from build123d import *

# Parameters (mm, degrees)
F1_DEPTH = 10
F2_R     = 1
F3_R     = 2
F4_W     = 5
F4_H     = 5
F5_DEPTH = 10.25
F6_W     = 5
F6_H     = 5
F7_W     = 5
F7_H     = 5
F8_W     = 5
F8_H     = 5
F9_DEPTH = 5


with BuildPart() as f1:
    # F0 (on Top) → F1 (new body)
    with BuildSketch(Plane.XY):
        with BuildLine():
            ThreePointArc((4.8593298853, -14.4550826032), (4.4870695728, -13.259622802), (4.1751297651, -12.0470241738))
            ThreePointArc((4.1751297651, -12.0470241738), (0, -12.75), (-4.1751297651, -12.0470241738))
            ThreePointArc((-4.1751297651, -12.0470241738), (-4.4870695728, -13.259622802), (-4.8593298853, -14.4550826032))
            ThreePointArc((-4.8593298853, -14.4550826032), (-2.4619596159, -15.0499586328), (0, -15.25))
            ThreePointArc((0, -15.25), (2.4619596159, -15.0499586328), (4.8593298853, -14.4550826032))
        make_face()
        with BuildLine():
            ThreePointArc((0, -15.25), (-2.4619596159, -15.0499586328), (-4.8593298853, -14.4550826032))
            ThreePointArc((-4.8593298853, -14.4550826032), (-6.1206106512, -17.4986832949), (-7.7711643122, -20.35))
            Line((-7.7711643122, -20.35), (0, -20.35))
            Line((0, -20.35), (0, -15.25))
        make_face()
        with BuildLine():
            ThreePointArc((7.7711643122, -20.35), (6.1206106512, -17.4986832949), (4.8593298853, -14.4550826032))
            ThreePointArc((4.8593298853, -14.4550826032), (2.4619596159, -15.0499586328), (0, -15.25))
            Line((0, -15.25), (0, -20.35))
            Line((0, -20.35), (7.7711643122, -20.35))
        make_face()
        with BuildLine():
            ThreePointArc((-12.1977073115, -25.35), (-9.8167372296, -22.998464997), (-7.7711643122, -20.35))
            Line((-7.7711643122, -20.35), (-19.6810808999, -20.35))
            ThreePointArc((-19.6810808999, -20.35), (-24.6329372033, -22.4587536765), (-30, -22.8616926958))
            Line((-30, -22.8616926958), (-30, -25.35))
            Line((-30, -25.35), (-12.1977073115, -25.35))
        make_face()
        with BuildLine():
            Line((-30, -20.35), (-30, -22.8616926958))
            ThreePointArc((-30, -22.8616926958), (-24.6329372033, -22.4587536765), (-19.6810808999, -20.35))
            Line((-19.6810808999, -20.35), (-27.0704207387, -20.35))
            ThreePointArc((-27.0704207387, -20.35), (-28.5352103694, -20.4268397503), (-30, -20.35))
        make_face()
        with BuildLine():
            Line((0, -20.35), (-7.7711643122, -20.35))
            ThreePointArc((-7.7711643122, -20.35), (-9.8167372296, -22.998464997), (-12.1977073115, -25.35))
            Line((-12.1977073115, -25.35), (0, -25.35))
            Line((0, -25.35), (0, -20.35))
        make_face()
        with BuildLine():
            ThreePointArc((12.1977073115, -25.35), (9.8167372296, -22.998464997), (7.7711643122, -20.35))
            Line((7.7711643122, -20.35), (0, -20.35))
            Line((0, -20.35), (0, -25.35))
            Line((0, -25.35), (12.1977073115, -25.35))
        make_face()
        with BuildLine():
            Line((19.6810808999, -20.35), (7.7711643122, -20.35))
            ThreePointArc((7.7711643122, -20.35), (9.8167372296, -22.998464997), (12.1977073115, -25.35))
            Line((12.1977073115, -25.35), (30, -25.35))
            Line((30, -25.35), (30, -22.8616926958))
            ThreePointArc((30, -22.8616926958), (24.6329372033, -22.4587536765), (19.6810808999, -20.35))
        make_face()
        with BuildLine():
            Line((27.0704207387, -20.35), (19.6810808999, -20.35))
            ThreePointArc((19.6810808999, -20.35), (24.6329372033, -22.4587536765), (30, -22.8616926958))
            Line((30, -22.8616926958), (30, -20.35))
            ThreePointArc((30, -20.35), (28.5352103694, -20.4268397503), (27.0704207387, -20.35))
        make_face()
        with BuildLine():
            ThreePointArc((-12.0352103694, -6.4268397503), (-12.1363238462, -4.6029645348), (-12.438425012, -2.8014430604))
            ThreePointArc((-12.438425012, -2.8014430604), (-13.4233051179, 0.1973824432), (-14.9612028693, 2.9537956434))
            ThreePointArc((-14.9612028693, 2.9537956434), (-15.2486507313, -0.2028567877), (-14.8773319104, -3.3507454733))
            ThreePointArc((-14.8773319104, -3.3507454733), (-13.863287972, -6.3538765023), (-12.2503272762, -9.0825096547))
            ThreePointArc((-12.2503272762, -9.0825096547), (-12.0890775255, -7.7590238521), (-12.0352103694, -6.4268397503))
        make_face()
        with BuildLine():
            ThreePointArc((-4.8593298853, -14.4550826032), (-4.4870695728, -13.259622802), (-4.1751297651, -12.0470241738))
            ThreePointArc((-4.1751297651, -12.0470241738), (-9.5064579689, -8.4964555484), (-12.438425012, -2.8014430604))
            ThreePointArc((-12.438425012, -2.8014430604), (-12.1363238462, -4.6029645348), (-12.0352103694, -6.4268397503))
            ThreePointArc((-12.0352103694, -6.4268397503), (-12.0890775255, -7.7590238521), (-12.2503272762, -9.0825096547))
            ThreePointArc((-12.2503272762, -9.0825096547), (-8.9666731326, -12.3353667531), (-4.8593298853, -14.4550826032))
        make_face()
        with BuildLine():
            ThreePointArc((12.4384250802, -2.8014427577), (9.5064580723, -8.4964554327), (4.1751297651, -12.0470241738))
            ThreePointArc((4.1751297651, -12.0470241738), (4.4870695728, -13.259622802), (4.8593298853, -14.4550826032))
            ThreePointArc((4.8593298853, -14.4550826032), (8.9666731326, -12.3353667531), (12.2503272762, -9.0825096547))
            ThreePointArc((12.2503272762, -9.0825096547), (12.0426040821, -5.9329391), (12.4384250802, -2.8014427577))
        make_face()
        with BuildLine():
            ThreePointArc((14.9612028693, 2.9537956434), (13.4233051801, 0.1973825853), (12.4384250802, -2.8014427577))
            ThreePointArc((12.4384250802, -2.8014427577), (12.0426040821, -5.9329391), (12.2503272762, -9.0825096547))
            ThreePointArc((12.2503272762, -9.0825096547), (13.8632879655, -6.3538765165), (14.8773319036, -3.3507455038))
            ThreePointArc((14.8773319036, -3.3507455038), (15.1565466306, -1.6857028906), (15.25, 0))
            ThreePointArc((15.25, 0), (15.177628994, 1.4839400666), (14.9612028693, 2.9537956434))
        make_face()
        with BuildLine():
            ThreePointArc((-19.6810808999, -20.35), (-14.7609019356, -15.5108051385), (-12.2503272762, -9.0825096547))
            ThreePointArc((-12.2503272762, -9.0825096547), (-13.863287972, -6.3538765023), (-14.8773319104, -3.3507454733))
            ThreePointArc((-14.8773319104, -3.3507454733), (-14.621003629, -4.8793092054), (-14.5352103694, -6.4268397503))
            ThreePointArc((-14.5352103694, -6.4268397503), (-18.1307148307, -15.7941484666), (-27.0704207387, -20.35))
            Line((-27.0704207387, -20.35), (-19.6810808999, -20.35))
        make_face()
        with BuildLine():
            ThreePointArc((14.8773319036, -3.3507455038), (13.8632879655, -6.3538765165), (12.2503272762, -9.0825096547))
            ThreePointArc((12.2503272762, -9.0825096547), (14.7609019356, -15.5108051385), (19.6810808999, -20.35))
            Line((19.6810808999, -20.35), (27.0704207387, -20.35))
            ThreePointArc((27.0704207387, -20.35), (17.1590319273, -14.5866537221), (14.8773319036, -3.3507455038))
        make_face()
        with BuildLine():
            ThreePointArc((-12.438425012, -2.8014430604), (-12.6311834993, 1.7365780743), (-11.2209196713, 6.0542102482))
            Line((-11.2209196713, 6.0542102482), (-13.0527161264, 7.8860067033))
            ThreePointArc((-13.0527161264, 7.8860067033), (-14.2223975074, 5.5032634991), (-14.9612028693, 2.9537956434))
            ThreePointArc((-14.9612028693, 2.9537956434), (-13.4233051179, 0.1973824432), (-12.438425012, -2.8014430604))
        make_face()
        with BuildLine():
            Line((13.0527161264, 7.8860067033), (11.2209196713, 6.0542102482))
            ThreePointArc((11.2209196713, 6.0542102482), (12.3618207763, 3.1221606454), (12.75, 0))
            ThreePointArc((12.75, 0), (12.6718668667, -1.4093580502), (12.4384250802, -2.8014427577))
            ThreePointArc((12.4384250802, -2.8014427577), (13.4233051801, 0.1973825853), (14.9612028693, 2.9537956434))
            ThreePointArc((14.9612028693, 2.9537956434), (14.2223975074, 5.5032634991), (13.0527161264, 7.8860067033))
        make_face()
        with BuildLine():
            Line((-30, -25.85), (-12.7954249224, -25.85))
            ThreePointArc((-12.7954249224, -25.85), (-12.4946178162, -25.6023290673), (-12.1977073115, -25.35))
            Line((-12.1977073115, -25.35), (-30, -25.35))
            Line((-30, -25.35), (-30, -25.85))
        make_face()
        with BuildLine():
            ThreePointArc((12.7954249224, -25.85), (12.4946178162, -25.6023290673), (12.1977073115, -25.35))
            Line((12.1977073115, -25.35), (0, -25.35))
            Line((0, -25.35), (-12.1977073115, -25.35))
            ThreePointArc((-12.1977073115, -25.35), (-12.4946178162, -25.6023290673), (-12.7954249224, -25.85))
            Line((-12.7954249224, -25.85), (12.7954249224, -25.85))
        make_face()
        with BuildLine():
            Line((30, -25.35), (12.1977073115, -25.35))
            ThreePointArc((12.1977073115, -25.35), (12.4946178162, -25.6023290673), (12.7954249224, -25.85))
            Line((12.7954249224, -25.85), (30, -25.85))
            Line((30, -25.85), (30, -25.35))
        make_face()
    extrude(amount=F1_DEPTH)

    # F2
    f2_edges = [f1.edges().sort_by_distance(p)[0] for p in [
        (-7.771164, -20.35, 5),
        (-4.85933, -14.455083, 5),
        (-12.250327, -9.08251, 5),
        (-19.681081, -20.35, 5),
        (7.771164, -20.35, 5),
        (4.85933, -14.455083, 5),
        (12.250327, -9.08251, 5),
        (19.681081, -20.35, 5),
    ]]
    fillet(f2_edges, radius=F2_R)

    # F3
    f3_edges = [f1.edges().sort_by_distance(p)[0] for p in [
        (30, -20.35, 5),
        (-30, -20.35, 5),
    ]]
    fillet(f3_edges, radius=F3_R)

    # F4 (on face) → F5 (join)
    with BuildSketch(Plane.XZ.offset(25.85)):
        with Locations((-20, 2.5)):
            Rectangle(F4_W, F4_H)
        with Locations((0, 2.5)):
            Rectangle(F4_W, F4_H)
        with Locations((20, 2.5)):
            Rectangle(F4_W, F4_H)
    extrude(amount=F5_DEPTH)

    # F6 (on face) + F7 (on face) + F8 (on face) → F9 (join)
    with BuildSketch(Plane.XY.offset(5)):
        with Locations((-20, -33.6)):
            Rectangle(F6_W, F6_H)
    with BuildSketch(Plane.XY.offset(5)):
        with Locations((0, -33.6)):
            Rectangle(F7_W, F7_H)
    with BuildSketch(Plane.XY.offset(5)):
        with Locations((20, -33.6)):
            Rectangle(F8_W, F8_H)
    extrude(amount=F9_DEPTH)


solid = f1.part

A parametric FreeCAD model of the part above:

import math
import FreeCAD as App
import Part
import Sketcher
from FreeCAD import Vector
Q = App.Units.Quantity


def edges_at(feature, points):
    """Names of the edges that pass closest to the given points."""
    edges = feature.Shape.Edges
    near = lambda p: min(range(len(edges)), key=lambda i: edges[i].distToShape(Part.Vertex(*p))[0])
    return sorted({f"Edge{near(p) + 1}" for p in points})

doc = App.newDocument("Part")
params = doc.addObject("Spreadsheet::Sheet", "Params")
for row, (alias, value) in enumerate([
    ("sketch1_radius", "14 mm"),
    ("sketch1_radius2", "25 mm"),
    ("sketch1_radius3", "16.5 mm"),
    ("sketch1_width", "60 mm"),
    ("sketch1_radius4", "12.75 mm"),
    ("pad1_length", "10 mm"),
    ("fillet_radius", "1 mm"),
    ("fillet2_radius", "2 mm"),
    ("sketch2_width", "5 mm"),
    ("pad2_length", "10.25 mm"),
    ("sketch3_width", "5 mm"),
    ("pad3_length", "5 mm"),
], start=1):
    params.set(f"A{row}", alias)
    params.set(f"B{row}", "=" + value)
    params.setAlias(f"B{row}", alias)

body = doc.addObject("PartDesign::Body", "Body")

# Sketch on XY plane
sketch1 = body.newObject("Sketcher::SketchObject", "Sketch")
sketch1.AttachmentSupport = (doc.getObject("XY_Plane"), [""])
sketch1.MapMode = "FlatFace"
sketch1.addGeometry([
    Part.ArcOfCircle(Part.Circle(Vector(0, 0, 0), Vector(0, 0, 1), 12.75), math.radians(-70.88525), math.radians(-12.692647)),  # 0
    Part.ArcOfCircle(Part.Circle(Vector(0, 0, 0), Vector(0, 0, 1), 12.75), math.radians(-109.11475), math.radians(-70.88525)),  # 1
    Part.ArcOfCircle(Part.Circle(Vector(0, 0, 0), Vector(0, 0, 1), 12.75), math.radians(-167.307352), math.radians(-109.11475)),  # 2
    Part.ArcOfCircle(Part.Circle(Vector(0, 0, 0), Vector(0, 0, 1), 12.75), math.radians(151.651066), math.radians(192.692648)),  # 3
    Part.LineSegment(Vector(-11.22092, 6.05421, 0), Vector(-13.052716, 7.886007, 0)),  # 4
    Part.ArcOfCircle(Part.Circle(Vector(0, 0, 0), Vector(0, 0, 1), 15.25), math.radians(148.861057), math.radians(168.831704)),  # 5
    Part.ArcOfCircle(Part.Circle(Vector(0, 0, 0), Vector(0, 0, 1), 15.25), math.radians(168.831704), math.radians(192.692647)),  # 6
    Part.ArcOfCircle(Part.Circle(Vector(-28.53521, -6.42684, 0), Vector(0, 0, 1), 14), math.radians(0), math.radians(12.692648)),  # 7
    Part.ArcOfCircle(Part.Circle(Vector(-28.53521, -6.42684, 0), Vector(0, 0, 1), 14), math.radians(-83.994275), math.radians(0)),  # 8
    Part.ArcOfCircle(Part.Circle(Vector(-28.53521, -6.42684, 0), Vector(0, 0, 1), 14), math.radians(-96.005725), math.radians(-83.994275)),  # 9
    Part.LineSegment(Vector(-30, -20.35, 0), Vector(-30, -25.85, 0)),  # 10
    Part.LineSegment(Vector(-30, -25.85, 0), Vector(30, -25.85, 0)),  # 11
    Part.LineSegment(Vector(30, -25.85, 0), Vector(30, -20.35, 0)),  # 12
    Part.ArcOfCircle(Part.Circle(Vector(28.53521, -6.42684, 0), Vector(0, 0, 1), 14), math.radians(-96.005725), math.radians(-83.994275)),  # 13
    Part.ArcOfCircle(Part.Circle(Vector(28.53521, -6.42684, 0), Vector(0, 0, 1), 14), math.radians(167.307352), math.radians(263.994275)),  # 14
    Part.ArcOfCircle(Part.Circle(Vector(0, 0, 0), Vector(0, 0, 1), 15.25), math.radians(-12.692647), math.radians(0)),  # 15
    Part.ArcOfCircle(Part.Circle(Vector(0, 0, 0), Vector(0, 0, 1), 15.25), math.radians(0), math.radians(11.168296)),  # 16
    Part.ArcOfCircle(Part.Circle(Vector(0, 0, 0), Vector(0, 0, 1), 15.25), math.radians(11.168296), math.radians(31.138943)),  # 17
    Part.LineSegment(Vector(13.052716, 7.886007, 0), Vector(11.22092, 6.05421, 0)),  # 18
    Part.ArcOfCircle(Part.Circle(Vector(0, 0, 0), Vector(0, 0, 1), 12.75), math.radians(0), math.radians(28.348934)),  # 19
    Part.ArcOfCircle(Part.Circle(Vector(0, 0, 0), Vector(0, 0, 1), 12.75), math.radians(-12.692647), math.radians(0)),  # 20
    Part.ArcOfCircle(Part.Circle(Vector(28.53521, -6.42684, 0), Vector(0, 0, 1), 16.5), math.radians(-170.737976), math.radians(-122.453429)),  # 21
    Part.LineSegment(Vector(19.681081, -20.35, 0), Vector(7.771164, -20.35, 0)),  # 22
    Part.ArcOfCircle(Part.Circle(Vector(28.53521, -6.42684, 0), Vector(0, 0, 1), 25), math.radians(-161.268741), math.radians(-146.156496)),  # 23
    Part.ArcOfCircle(Part.Circle(Vector(0, 0, 0), Vector(0, 0, 1), 15.25), math.radians(-71.419025), math.radians(-36.553591)),  # 24
    Part.ArcOfCircle(Part.Circle(Vector(-28.53521, -6.42684, 0), Vector(0, 0, 1), 25), math.radians(-33.843504), math.radians(-18.731259)),  # 25
    Part.LineSegment(Vector(-7.771164, -20.35, 0), Vector(-19.681081, -20.35, 0)),  # 26
    Part.ArcOfCircle(Part.Circle(Vector(-28.53521, -6.42684, 0), Vector(0, 0, 1), 16.5), math.radians(-57.546571), math.radians(-9.262024)),  # 27
    Part.ArcOfCircle(Part.Circle(Vector(0, 0, 0), Vector(0, 0, 1), 15.25), math.radians(-143.446409), math.radians(-108.580975)),  # 28
], False)
sketch1.addConstraint([
    Sketcher.Constraint("Tangent", 0, 1, 1, 2),
    Sketcher.Constraint("Tangent", 1, 1, 2, 2),
    Sketcher.Constraint("Tangent", 2, 1, 3, 2),
    Sketcher.Constraint("Coincident", 3, 1, 4, 1),
    Sketcher.Constraint("Coincident", 4, 2, 5, 1),
    Sketcher.Constraint("Tangent", 5, 2, 6, 1),
    Sketcher.Constraint("Tangent", 6, 2, 7, 2),
    Sketcher.Constraint("Tangent", 7, 1, 8, 2),
    Sketcher.Constraint("Tangent", 8, 1, 9, 2),
    Sketcher.Constraint("Coincident", 9, 1, 10, 1),
    Sketcher.Constraint("Coincident", 10, 2, 11, 1),
    Sketcher.Constraint("Coincident", 11, 2, 12, 1),
    Sketcher.Constraint("Coincident", 12, 2, 13, 2),
    Sketcher.Constraint("Tangent", 13, 1, 14, 2),
    Sketcher.Constraint("Tangent", 14, 1, 15, 1),
    Sketcher.Constraint("Tangent", 15, 2, 16, 1),
    Sketcher.Constraint("Tangent", 16, 2, 17, 1),
    Sketcher.Constraint("Coincident", 17, 2, 18, 1),
    Sketcher.Constraint("Coincident", 18, 2, 19, 2),
    Sketcher.Constraint("Tangent", 19, 1, 20, 2),
    Sketcher.Constraint("Tangent", 20, 1, 0, 2),
    Sketcher.Constraint("Coincident", 21, 2, 22, 1),
    Sketcher.Constraint("Coincident", 22, 2, 23, 2),
    Sketcher.Constraint("Coincident", 23, 1, 24, 1),
    Sketcher.Constraint("Coincident", 24, 2, 21, 1),
    Sketcher.Constraint("Coincident", 25, 1, 26, 1),
    Sketcher.Constraint("Coincident", 26, 2, 27, 1),
    Sketcher.Constraint("Coincident", 27, 2, 28, 1),
    Sketcher.Constraint("Coincident", 28, 2, 25, 2),
    Sketcher.Constraint("Vertical", 10),
    Sketcher.Constraint("Horizontal", 11),
    Sketcher.Constraint("Vertical", 12),
    Sketcher.Constraint("Horizontal", 22),
    Sketcher.Constraint("Horizontal", 26),
    Sketcher.Constraint("Coincident", 0, 3, -1, 1),
    Sketcher.Constraint("Coincident", 2, 3, -1, 1),
    Sketcher.Constraint("Coincident", 5, 3, -1, 1),
    Sketcher.Constraint("Coincident", 15, 3, -1, 1),
    Sketcher.Constraint("Coincident", 17, 3, -1, 1),
    Sketcher.Constraint("Coincident", 19, 3, -1, 1),
    Sketcher.Constraint("Coincident", 24, 3, -1, 1),
    Sketcher.Constraint("Coincident", 28, 3, -1, 1),
    Sketcher.Constraint("Coincident", 9, 3, 7, 3),
    Sketcher.Constraint("Coincident", 21, 3, 13, 3),
    Sketcher.Constraint("Coincident", 23, 3, 13, 3),
    Sketcher.Constraint("Coincident", 25, 3, 7, 3),
    Sketcher.Constraint("Coincident", 27, 3, 7, 3),
    Sketcher.Constraint("Equal", 2, 3),
    Sketcher.Constraint("Equal", 5, 6),
    Sketcher.Constraint("Equal", 9, 13),
    Sketcher.Constraint("Equal", 13, 14),
    Sketcher.Constraint("Equal", 6, 15),
    Sketcher.Constraint("Equal", 17, 24),
    Sketcher.Constraint("Equal", 23, 25),
    Sketcher.Constraint("Equal", 21, 27),
    Sketcher.Constraint("Equal", 24, 28),
    Sketcher.Constraint("Symmetric", 9, 1, 12, 2, -2),
    Sketcher.Constraint("PointOnObject", 15, 2, -1),
    Sketcher.Constraint("PointOnObject", 19, 1, -1),
    Sketcher.Constraint("Perpendicular", 4, 18),
    Sketcher.Constraint("Horizontal", 0, 1, 1, 1),
    Sketcher.Constraint("Horizontal", 27, 3, 7, 1),
    Sketcher.Constraint("Horizontal", 8, 1, 9, 1),
    Sketcher.Constraint("Horizontal", 12, 2, 13, 1),
    Sketcher.Constraint("Horizontal", 5, 2, 16, 2),
    Sketcher.Constraint("Horizontal", 4, 2, 17, 2),
    Sketcher.Constraint("Horizontal", 3, 1, 18, 2),
    Sketcher.Constraint("Horizontal", 2, 1, 20, 1),
    Sketcher.Constraint("Horizontal", 13, 1, 21, 2),
    Sketcher.Constraint("Horizontal", 22, 2, 25, 1),
    Sketcher.Constraint("Radius", 7, Q("14 mm")),
    Sketcher.Constraint("Radius", 23, Q("25 mm")),
    Sketcher.Constraint("Radius", 21, Q("16.5 mm")),
    Sketcher.Constraint("DistanceX", 11, 1, 11, 2, Q("60 mm")),
    Sketcher.Constraint("Radius", 0, Q("12.75 mm")),
    Sketcher.Constraint("Radius", 5, Q("15.25 mm")),
    Sketcher.Constraint("DistanceY", 10, 2, 10, 1, Q("5.5 mm")),
    Sketcher.Constraint("DistanceY", 8, 1, -1, 1, Q("20.35 mm")),
    Sketcher.Constraint("DistanceX", 0, 1, 23, 1, Q("0.6842 mm")),
    Sketcher.Constraint("Distance", 4, Q("2.590551 mm")),
    Sketcher.Constraint("DistanceY", 1, 1, 2, 1, Q("9.245581 mm")),
    Sketcher.Constraint("DistanceY", 5, 2, 4, 2, Q("4.932211 mm")),
])
sketch1.setExpression("Constraints[70]", "Params.sketch1_radius")
sketch1.setExpression("Constraints[71]", "Params.sketch1_radius2")
sketch1.setExpression("Constraints[72]", "Params.sketch1_radius3")
sketch1.setExpression("Constraints[73]", "Params.sketch1_width")
sketch1.setExpression("Constraints[74]", "Params.sketch1_radius4")
pad1 = body.newObject("PartDesign::Pad", "Pad")
pad1.Profile = sketch1
pad1.setExpression("Length", "Params.pad1_length")
doc.recompute()

fillet = body.newObject("PartDesign::Fillet", "Fillet")
fillet.Base = (pad1, edges_at(pad1, [
    (-7.771, -20.35, 5),
    (-4.859, -14.455, 5),
    (-12.25, -9.083, 5),
    (-19.681, -20.35, 5),
    (7.771, -20.35, 5),
    (4.859, -14.455, 5),
    (12.25, -9.083, 5),
    (19.681, -20.35, 5),
]))
fillet.setExpression("Radius", "Params.fillet_radius")
doc.recompute()

fillet2 = body.newObject("PartDesign::Fillet", "Fillet001")
fillet2.Base = (fillet, edges_at(fillet, [(30, -20.35, 5), (-30, -20.35, 5)]))
fillet2.setExpression("Radius", "Params.fillet2_radius")

# Sketch on XZ plane
sketch2 = body.newObject("Sketcher::SketchObject", "Sketch001")
sketch2.AttachmentSupport = (doc.getObject("XZ_Plane"), [""])
sketch2.MapMode = "FlatFace"
sketch2.AttachmentOffset = App.Placement(Vector(0, 0, 25.85), App.Rotation())
sketch2.addGeometry([
    Part.LineSegment(Vector(-22.5, 5, 0), Vector(-22.5, 0, 0)),  # 0
    Part.LineSegment(Vector(-22.5, 0, 0), Vector(-17.5, 0, 0)),  # 1
    Part.LineSegment(Vector(-17.5, 0, 0), Vector(-17.5, 5, 0)),  # 2
    Part.LineSegment(Vector(-17.5, 5, 0), Vector(-22.5, 5, 0)),  # 3
    Part.LineSegment(Vector(-2.5, 5, 0), Vector(-2.5, 0, 0)),  # 4
    Part.LineSegment(Vector(-2.5, 0, 0), Vector(2.5, 0, 0)),  # 5
    Part.LineSegment(Vector(2.5, 0, 0), Vector(2.5, 5, 0)),  # 6
    Part.LineSegment(Vector(2.5, 5, 0), Vector(-2.5, 5, 0)),  # 7
    Part.LineSegment(Vector(17.5, 5, 0), Vector(17.5, 0, 0)),  # 8
    Part.LineSegment(Vector(17.5, 0, 0), Vector(22.5, 0, 0)),  # 9
    Part.LineSegment(Vector(22.5, 0, 0), Vector(22.5, 5, 0)),  # 10
    Part.LineSegment(Vector(22.5, 5, 0), Vector(17.5, 5, 0)),  # 11
], False)
sketch2.addConstraint([
    Sketcher.Constraint("Coincident", 0, 2, 1, 1),
    Sketcher.Constraint("Coincident", 1, 2, 2, 1),
    Sketcher.Constraint("Coincident", 2, 2, 3, 1),
    Sketcher.Constraint("Coincident", 3, 2, 0, 1),
    Sketcher.Constraint("Coincident", 4, 2, 5, 1),
    Sketcher.Constraint("Coincident", 5, 2, 6, 1),
    Sketcher.Constraint("Coincident", 6, 2, 7, 1),
    Sketcher.Constraint("Coincident", 7, 2, 4, 1),
    Sketcher.Constraint("Coincident", 8, 2, 9, 1),
    Sketcher.Constraint("Coincident", 9, 2, 10, 1),
    Sketcher.Constraint("Coincident", 10, 2, 11, 1),
    Sketcher.Constraint("Coincident", 11, 2, 8, 1),
    Sketcher.Constraint("Vertical", 0),
    Sketcher.Constraint("Horizontal", 1),
    Sketcher.Constraint("Vertical", 2),
    Sketcher.Constraint("Horizontal", 3),
    Sketcher.Constraint("Vertical", 4),
    Sketcher.Constraint("Horizontal", 5),
    Sketcher.Constraint("Vertical", 6),
    Sketcher.Constraint("Horizontal", 7),
    Sketcher.Constraint("Vertical", 8),
    Sketcher.Constraint("Horizontal", 9),
    Sketcher.Constraint("Vertical", 10),
    Sketcher.Constraint("Horizontal", 11),
    Sketcher.Constraint("Symmetric", 4, 2, 5, 2, -1, 1),
    Sketcher.Constraint("Symmetric", 1, 2, 8, 2, -1, 1),
    Sketcher.Constraint("Symmetric", 0, 2, 9, 2, -2),
    Sketcher.Constraint("Horizontal", 3, 2, 6, 2),
    Sketcher.Constraint("Horizontal", 7, 2, 10, 2),
    Sketcher.Constraint("Equal", 3, 5),
    Sketcher.Constraint("Equal", 11, 0),
    Sketcher.Constraint("DistanceX", 1, 1, 1, 2, Q("5 mm")),
    Sketcher.Constraint("DistanceX", 1, 2, 4, 2, Q("15 mm")),
])
sketch2.setExpression("Constraints[31]", "Params.sketch2_width")
pad2 = body.newObject("PartDesign::Pad", "Pad001")
pad2.Profile = sketch2
pad2.setExpression("Length", "Params.pad2_length")

# Sketch on XY plane
sketch3 = body.newObject("Sketcher::SketchObject", "Sketch002")
sketch3.AttachmentSupport = (doc.getObject("XY_Plane"), [""])
sketch3.MapMode = "FlatFace"
sketch3.AttachmentOffset = App.Placement(Vector(0, 0, 5), App.Rotation())
sketch3.addGeometry([
    Part.LineSegment(Vector(-22.5, -31.1, 0), Vector(-22.5, -36.1, 0)),  # 0
    Part.LineSegment(Vector(-22.5, -36.1, 0), Vector(-17.5, -36.1, 0)),  # 1
    Part.LineSegment(Vector(-17.5, -36.1, 0), Vector(-17.5, -31.1, 0)),  # 2
    Part.LineSegment(Vector(-17.5, -31.1, 0), Vector(-22.5, -31.1, 0)),  # 3
    Part.LineSegment(Vector(-2.5, -31.1, 0), Vector(-2.5, -36.1, 0)),  # 4
    Part.LineSegment(Vector(-2.5, -36.1, 0), Vector(2.5, -36.1, 0)),  # 5
    Part.LineSegment(Vector(2.5, -36.1, 0), Vector(2.5, -31.1, 0)),  # 6
    Part.LineSegment(Vector(2.5, -31.1, 0), Vector(-2.5, -31.1, 0)),  # 7
    Part.LineSegment(Vector(17.5, -31.1, 0), Vector(17.5, -36.1, 0)),  # 8
    Part.LineSegment(Vector(17.5, -36.1, 0), Vector(22.5, -36.1, 0)),  # 9
    Part.LineSegment(Vector(22.5, -36.1, 0), Vector(22.5, -31.1, 0)),  # 10
    Part.LineSegment(Vector(22.5, -31.1, 0), Vector(17.5, -31.1, 0)),  # 11
], False)
sketch3.addConstraint([
    Sketcher.Constraint("Coincident", 0, 2, 1, 1),
    Sketcher.Constraint("Coincident", 1, 2, 2, 1),
    Sketcher.Constraint("Coincident", 2, 2, 3, 1),
    Sketcher.Constraint("Coincident", 3, 2, 0, 1),
    Sketcher.Constraint("Coincident", 4, 2, 5, 1),
    Sketcher.Constraint("Coincident", 5, 2, 6, 1),
    Sketcher.Constraint("Coincident", 6, 2, 7, 1),
    Sketcher.Constraint("Coincident", 7, 2, 4, 1),
    Sketcher.Constraint("Coincident", 8, 2, 9, 1),
    Sketcher.Constraint("Coincident", 9, 2, 10, 1),
    Sketcher.Constraint("Coincident", 10, 2, 11, 1),
    Sketcher.Constraint("Coincident", 11, 2, 8, 1),
    Sketcher.Constraint("Vertical", 0),
    Sketcher.Constraint("Horizontal", 1),
    Sketcher.Constraint("Vertical", 2),
    Sketcher.Constraint("Horizontal", 3),
    Sketcher.Constraint("Vertical", 4),
    Sketcher.Constraint("Horizontal", 5),
    Sketcher.Constraint("Vertical", 6),
    Sketcher.Constraint("Horizontal", 7),
    Sketcher.Constraint("Vertical", 8),
    Sketcher.Constraint("Horizontal", 9),
    Sketcher.Constraint("Vertical", 10),
    Sketcher.Constraint("Horizontal", 11),
    Sketcher.Constraint("Symmetric", 1, 2, 8, 2, -2),
    Sketcher.Constraint("Symmetric", 3, 2, 10, 2, -2),
    Sketcher.Constraint("Horizontal", 1, 2, 4, 2),
    Sketcher.Constraint("Horizontal", 3, 2, 6, 2),
    Sketcher.Constraint("Equal", 3, 5),
    Sketcher.Constraint("Equal", 11, 0),
    Sketcher.Constraint("DistanceX", 1, 1, 1, 2, Q("5 mm")),
    Sketcher.Constraint("DistanceX", 1, 2, 4, 2, Q("15 mm")),
    Sketcher.Constraint("DistanceX", 5, 2, 8, 2, Q("15 mm")),
    Sketcher.Constraint("DistanceY", 0, 2, -1, 1, Q("36.1 mm")),
])
sketch3.setExpression("Constraints[30]", "Params.sketch3_width")
pad3 = body.newObject("PartDesign::Pad", "Pad002")
pad3.Profile = sketch3
pad3.setExpression("Length", "Params.pad3_length")

doc.recompute()
